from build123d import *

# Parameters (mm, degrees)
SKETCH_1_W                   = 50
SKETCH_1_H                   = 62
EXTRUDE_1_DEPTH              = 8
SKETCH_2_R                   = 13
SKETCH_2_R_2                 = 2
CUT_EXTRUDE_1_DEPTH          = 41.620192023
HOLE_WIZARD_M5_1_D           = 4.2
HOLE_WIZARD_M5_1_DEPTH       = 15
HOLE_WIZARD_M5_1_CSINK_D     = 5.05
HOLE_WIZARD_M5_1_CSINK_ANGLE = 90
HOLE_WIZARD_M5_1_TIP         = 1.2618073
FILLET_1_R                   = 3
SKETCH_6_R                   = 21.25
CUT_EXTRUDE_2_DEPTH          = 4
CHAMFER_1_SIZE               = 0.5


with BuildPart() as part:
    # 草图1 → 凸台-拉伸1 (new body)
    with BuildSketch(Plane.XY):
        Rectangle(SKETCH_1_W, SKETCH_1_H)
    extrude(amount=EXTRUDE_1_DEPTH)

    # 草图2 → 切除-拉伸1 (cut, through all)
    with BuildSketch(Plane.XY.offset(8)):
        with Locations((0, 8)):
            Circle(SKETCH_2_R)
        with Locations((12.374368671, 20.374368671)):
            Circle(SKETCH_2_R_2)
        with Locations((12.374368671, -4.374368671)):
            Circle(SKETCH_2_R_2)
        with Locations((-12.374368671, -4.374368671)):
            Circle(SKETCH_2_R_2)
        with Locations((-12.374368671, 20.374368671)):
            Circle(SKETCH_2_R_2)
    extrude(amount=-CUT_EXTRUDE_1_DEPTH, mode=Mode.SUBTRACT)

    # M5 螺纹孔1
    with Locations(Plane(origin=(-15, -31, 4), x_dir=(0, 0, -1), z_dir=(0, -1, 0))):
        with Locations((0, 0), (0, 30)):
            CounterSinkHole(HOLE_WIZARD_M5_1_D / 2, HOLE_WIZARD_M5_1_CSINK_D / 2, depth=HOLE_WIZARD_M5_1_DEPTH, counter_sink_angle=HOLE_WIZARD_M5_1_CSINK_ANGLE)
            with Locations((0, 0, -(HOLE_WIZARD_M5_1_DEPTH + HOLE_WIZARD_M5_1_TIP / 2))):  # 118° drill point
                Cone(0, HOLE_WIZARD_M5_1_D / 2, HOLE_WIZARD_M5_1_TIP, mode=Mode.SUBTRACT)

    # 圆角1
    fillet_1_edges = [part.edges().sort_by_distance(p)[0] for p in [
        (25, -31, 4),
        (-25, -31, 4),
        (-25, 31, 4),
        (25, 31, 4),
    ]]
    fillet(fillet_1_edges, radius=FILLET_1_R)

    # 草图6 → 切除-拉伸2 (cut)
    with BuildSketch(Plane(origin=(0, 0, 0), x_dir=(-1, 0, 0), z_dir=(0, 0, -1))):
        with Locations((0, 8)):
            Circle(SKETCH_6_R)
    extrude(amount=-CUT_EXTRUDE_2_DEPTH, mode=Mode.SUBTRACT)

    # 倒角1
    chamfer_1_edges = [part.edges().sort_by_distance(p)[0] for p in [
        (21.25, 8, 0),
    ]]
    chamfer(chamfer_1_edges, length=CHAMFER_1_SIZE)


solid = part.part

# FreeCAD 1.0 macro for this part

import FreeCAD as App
import Part
import Sketcher


def edges_at(feature, points):
    """Names of the edges that pass closest to the given points."""
    edges = feature.Shape.Edges
    near = lambda p: min(range(len(edges)), key=lambda i: edges[i].distToShape(Part.Vertex(*p))[0])
    return sorted({f"Edge{near(p) + 1}" for p in points})


def add_polygon(sketch, points):
    """Adds a closed chain of lines whose ends are joined by coincident constraints."""
    first, n = sketch.GeometryCount, len(points)
    for a, b in zip(points, points[1:] + points[:1]):
        sketch.addGeometry(Part.LineSegment(App.Vector(*a, 0), App.Vector(*b, 0)), False)
    for i in range(n):
        sketch.addConstraint(Sketcher.Constraint("Coincident", first + i, 2, first + (i + 1) % n, 1))

doc = App.newDocument("Part")
body = doc.addObject("PartDesign::Body", "Body")

# Sketch on XY plane
sketch1 = body.newObject("Sketcher::SketchObject", "Sketch")
sketch1.AttachmentSupport = (doc.getObject("XY_Plane"), [""])
sketch1.MapMode = "FlatFace"
add_polygon(sketch1, [(-25, 31), (-25, -31), (25, -31), (25, 31)])  # lines 0-3
sketch1.addConstraint([
    Sketcher.Constraint("Vertical", 0),
    Sketcher.Constraint("Horizontal", 1),
    Sketcher.Constraint("Vertical", 2),
    Sketcher.Constraint("Horizontal", 3),
    Sketcher.Constraint("Symmetric", 0, 2, 2, 2, -1, 1),
    Sketcher.Constraint("DistanceX", 1, 1, 1, 2, 50.0),
    Sketcher.Constraint("DistanceY", 0, 2, 0, 1, 62.0),
])
pad1 = body.newObject("PartDesign::Pad", "Pad")
pad1.Profile = sketch1
pad1.Length = 8

# Sketch on XY plane
sketch2 = body.newObject("Sketcher::SketchObject", "Sketch001")
sketch2.AttachmentSupport = (doc.getObject("XY_Plane"), [""])
sketch2.MapMode = "FlatFace"
sketch2.AttachmentOffset = App.Placement(App.Vector(0, 0, 8), App.Rotation())
sketch2.addGeometry([
    Part.Circle(App.Vector(0, 8, 0), App.Vector(0, 0, 1), 13),  # 0
    Part.Circle(App.Vector(12.4, 20.4, 0), App.Vector(0, 0, 1), 2),  # 1
    Part.Circle(App.Vector(12.4, -4.4, 0), App.Vector(0, 0, 1), 2),  # 2
    Part.Circle(App.Vector(-12.4, -4.4, 0), App.Vector(0, 0, 1), 2),  # 3
    Part.Circle(App.Vector(-12.4, 20.4, 0), App.Vector(0, 0, 1), 2),  # 4
], False)
sketch2.addConstraint([
    Sketcher.Constraint("Equal", 1, 2),
    Sketcher.Constraint("Equal", 2, 3),
    Sketcher.Constraint("Equal", 3, 4),
    Sketcher.Constraint("Symmetric", 2, 3, 3, 3, -2),
    Sketcher.Constraint("Symmetric", 1, 3, 4, 3, -2),
    Sketcher.Constraint("PointOnObject", 0, 3, -2),
    Sketcher.Constraint("Vertical", 1, 3, 2, 3),
    Sketcher.Constraint("Diameter", 0, 26.0),
    Sketcher.Constraint("Diameter", 1, 4.0),
    Sketcher.Constraint("DistanceY", -1, 1, 0, 3, 8.0),
    Sketcher.Constraint("DistanceX", -1, 1, 1, 3, 12.374369),
    Sketcher.Constraint("DistanceY", -1, 1, 1, 3, 20.374369),
    Sketcher.Constraint("DistanceY", 2, 3, -1, 1, 4.374369),
])
pocket1 = body.newObject("PartDesign::Pocket", "Pocket")
pocket1.Profile = sketch2
pocket1.Type = "ThroughAll"

# Sketch on XZ plane
sketch3 = body.newObject("Sketcher::SketchObject", "Sketch002")
sketch3.AttachmentSupport = (doc.getObject("XZ_Plane"), [""])
sketch3.MapMode = "FlatFace"
sketch3.AttachmentOffset = App.Placement(App.Vector(0, 0, 31), App.Rotation())
sketch3.addGeometry([
    Part.Circle(App.Vector(-15, 4, 0), App.Vector(0, 0, 1), 2.1),
    Part.Circle(App.Vector(15, 4, 0), App.Vector(0, 0, 1), 2.1),
], False)
sketch3.addConstraint([
    Sketcher.Constraint("Equal", 0, 1),
    Sketcher.Constraint("Symmetric", 0, 3, 1, 3, -2),
    Sketcher.Constraint("Diameter", 0, 4.2),
    Sketcher.Constraint("DistanceX", 0, 3, -1, 1, 15.0),
    Sketcher.Constraint("DistanceY", -1, 1, 0, 3, 4.0),
])
doc.recompute()
hole = body.newObject("PartDesign::Hole", "Hole")
hole.Profile = sketch3
hole.ThreadType = "None"
hole.Diameter = 4.2
hole.DepthType = "Dimension"
hole.Depth = 15
hole.DrillPoint = "Angled"
hole.DrillPointAngle = 118
hole.HoleCutType = "Countersink"
hole.HoleCutDiameter = 5.05
hole.HoleCutCountersinkAngle = 90
doc.recompute()

fillet = body.newObject("PartDesign::Fillet", "Fillet")
fillet.Base = (hole, edges_at(hole, [
    (25, -31, 4),
    (-25, -31, 4),
    (-25, 31, 4),
    (25, 31, 4),
]))
fillet.Radius = 3

# Sketch on XY plane
sketch4 = body.newObject("Sketcher::SketchObject", "Sketch003")
sketch4.AttachmentSupport = (doc.getObject("XY_Plane"), [""])
sketch4.MapMode = "FlatFace"
sketch4.addGeometry(Part.Circle(App.Vector(0, 8, 0), App.Vector(0, 0, 1), 21), False)
sketch4.addConstraint([
    Sketcher.Constraint("PointOnObject", 0, 3, -2),
    Sketcher.Constraint("Diameter", 0, 42.5),
    Sketcher.Constraint("DistanceY", -1, 1, 0, 3, 8.0),
])
pocket2 = body.newObject("PartDesign::Pocket", "Pocket001")
pocket2.Profile = sketch4
pocket2.Length = 4
pocket2.Reversed = True
doc.recompute()

chamfer = body.newObject("PartDesign::Chamfer", "Chamfer")
chamfer.Base = (pocket2, edges_at(pocket2, [(21.25, 8, 0)]))
chamfer.Size = 0.5

doc.recompute()
